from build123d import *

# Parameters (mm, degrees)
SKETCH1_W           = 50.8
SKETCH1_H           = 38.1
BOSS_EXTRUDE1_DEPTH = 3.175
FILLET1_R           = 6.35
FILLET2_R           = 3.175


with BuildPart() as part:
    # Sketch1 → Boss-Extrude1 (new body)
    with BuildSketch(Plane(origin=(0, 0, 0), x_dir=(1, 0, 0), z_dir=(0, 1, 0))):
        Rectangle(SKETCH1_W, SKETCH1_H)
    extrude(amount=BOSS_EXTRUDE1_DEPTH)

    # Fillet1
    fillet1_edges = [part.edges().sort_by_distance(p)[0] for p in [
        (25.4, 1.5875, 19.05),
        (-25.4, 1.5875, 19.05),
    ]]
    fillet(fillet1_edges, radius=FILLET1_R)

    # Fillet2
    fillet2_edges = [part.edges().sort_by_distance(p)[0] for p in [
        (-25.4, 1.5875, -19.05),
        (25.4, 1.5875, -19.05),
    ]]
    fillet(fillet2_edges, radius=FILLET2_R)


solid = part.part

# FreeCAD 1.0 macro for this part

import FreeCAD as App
import Part
import Sketcher
Q = App.Units.Quantity


def edges_at(feature, points):
    """Names of the edges that pass closest to the given points."""
    edges = feature.Shape.Edges
    near = lambda p: min(range(len(edges)), key=lambda i: edges[i].distToShape(Part.Vertex(*p))[0])
    return sorted({f"Edge{near(p) + 1}" for p in points})


def add_polygon(sketch, points):
    """Adds a closed chain of lines whose ends are joined by coincident constraints."""
    first, n = sketch.GeometryCount, len(points)
    for a, b in zip(points, points[1:] + points[:1]):
        sketch.addGeometry(Part.LineSegment(App.Vector(*a, 0), App.Vector(*b, 0)), False)
    for i in range(n):
        sketch.addConstraint(Sketcher.Constraint("Coincident", first + i, 2, first + (i + 1) % n, 1))

doc = App.newDocument("Part")
body = doc.addObject("PartDesign::Body", "Body")

# Sketch on XZ plane
sketch1 = body.newObject("Sketcher::SketchObject", "Sketch")
sketch1.AttachmentSupport = (doc.getObject("XZ_Plane"), [""])
sketch1.MapMode = "FlatFace"
add_polygon(sketch1, [(-25, -19), (-25, 19), (25, 19), (25, -19)])  # lines 0-3
sketch1.addConstraint(Sketcher.Constraint("Vertical", 0))
sketch1.addConstraint(Sketcher.Constraint("Horizontal", 1))
sketch1.addConstraint(Sketcher.Constraint("Vertical", 2))
sketch1.addConstraint(Sketcher.Constraint("Horizontal", 3))
sketch1.addConstraint(Sketcher.Constraint("Symmetric", 0, 2, 2, 2, -1, 1))
sketch1.addConstraint(Sketcher.Constraint("DistanceX", 1, 1, 1, 2, Q("2 in")))
sketch1.addConstraint(Sketcher.Constraint("DistanceY", 0, 1, 0, 2, Q("1.5 in")))
pad1 = body.newObject("PartDesign::Pad", "Pad")
pad1.Profile = sketch1
pad1.Length = Q("0.125 in")
pad1.Reversed = True
doc.recompute()

fillet = body.newObject("PartDesign::Fillet", "Fillet")
fillet.Base = (pad1, edges_at(pad1, [(25.4, 1.587, 19.05), (-25.4, 1.587, 19.05)]))
fillet.Radius = Q("0.25 in")
doc.recompute()

fillet2 = body.newObject("PartDesign::Fillet", "Fillet001")
fillet2.Base = (fillet, edges_at(fillet, [(-25.4, 1.587, -19.05), (25.4, 1.587, -19.05)]))
fillet2.Radius = Q("0.125 in")

doc.recompute()
